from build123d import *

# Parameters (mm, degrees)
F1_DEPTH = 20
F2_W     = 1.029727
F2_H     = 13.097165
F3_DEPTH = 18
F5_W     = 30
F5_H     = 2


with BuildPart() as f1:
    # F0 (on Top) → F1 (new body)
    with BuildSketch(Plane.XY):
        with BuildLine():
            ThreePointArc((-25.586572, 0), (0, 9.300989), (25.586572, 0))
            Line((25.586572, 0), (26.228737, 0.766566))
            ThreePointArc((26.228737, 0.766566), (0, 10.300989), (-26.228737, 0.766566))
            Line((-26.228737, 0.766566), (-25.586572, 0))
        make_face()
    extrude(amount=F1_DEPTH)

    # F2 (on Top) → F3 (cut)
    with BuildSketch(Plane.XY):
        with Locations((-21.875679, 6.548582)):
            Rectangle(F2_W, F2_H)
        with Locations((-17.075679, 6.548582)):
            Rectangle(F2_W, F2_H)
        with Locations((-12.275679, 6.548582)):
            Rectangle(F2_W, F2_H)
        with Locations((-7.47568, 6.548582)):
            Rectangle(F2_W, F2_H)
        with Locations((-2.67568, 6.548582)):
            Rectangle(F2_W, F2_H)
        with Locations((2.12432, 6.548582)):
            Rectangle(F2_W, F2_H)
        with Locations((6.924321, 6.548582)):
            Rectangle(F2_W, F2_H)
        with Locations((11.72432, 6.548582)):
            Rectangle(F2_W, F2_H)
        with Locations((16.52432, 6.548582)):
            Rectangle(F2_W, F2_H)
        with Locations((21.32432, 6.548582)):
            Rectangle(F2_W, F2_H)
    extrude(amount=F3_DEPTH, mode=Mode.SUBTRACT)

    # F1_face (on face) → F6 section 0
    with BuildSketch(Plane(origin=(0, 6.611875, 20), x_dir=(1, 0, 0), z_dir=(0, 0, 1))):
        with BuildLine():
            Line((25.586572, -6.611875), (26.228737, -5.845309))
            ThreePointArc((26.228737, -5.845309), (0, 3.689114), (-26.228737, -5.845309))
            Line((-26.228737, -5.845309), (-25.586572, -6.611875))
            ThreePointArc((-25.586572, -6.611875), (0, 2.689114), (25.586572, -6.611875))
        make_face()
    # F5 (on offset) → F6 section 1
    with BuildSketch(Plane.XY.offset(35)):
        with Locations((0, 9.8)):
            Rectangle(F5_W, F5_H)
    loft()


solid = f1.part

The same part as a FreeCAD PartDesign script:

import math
import FreeCAD as App
import Part
import Sketcher

V = App.Vector
Q = App.Units.Quantity


def add_polygon(sketch, points):
    """Adds a closed chain of lines whose ends are joined by coincident constraints."""
    first, n = sketch.GeometryCount, len(points)
    for a, b in zip(points, points[1:] + points[:1]):
        sketch.addGeometry(Part.LineSegment(App.Vector(*a, 0), App.Vector(*b, 0)), False)
    for i in range(n):
        sketch.addConstraint(Sketcher.Constraint("Coincident", first + i, 2, first + (i + 1) % n, 1))

doc = App.newDocument("Part")
body = doc.addObject("PartDesign::Body", "Body")

# Sketch on XY plane
sketch1 = doc.addObject("Sketcher::SketchObject", "Sketch")
body.addObject(sketch1)
sketch1.AttachmentSupport = (doc.XY_Plane, [""])
sketch1.MapMode = "FlatFace"
sketch1.addGeometry([
    Part.ArcOfCircle(Part.Circle(V(0, -30.5, 0), V(0, 0, 1), 39.8), math.radians(50), math.radians(130)),
    Part.LineSegment(V(25.6, 0, 0), V(26.2, 0.8, 0)),
    Part.ArcOfCircle(Part.Circle(V(0, -30.5, 0), V(0, 0, 1), 40.8), math.radians(50), math.radians(130)),
    Part.LineSegment(V(-26.2, 0.8, 0), V(-25.6, 0, 0)),
], False)
sketch1.addConstraint([
    Sketcher.Constraint("Coincident", 0, 1, 1, 1),
    Sketcher.Constraint("Coincident", 1, 2, 2, 1),
    Sketcher.Constraint("Coincident", 2, 2, 3, 1),
    Sketcher.Constraint("Coincident", 3, 2, 0, 2),
    Sketcher.Constraint("Coincident", 2, 3, 0, 3),
    Sketcher.Constraint("Symmetric", 0, 1, 3, 2, -1, 1),
    Sketcher.Constraint("Symmetric", 1, 2, 2, 2, -2),
    Sketcher.Constraint("Distance", 1, Q("1 mm")),
    Sketcher.Constraint("Radius", 0, Q("39.844207 mm")),
    Sketcher.Constraint("DistanceY", 0, 3, -1, 1, Q("30.543218 mm")),
    Sketcher.Constraint("DistanceX", 2, 2, 0, 1, Q("51.815309 mm")),
])
pad1 = doc.addObject("PartDesign::Pad", "Pad")
body.addObject(pad1)
pad1.Profile = sketch1
pad1.Length = 20

# Sketch on XY plane
sketch2 = doc.addObject("Sketcher::SketchObject", "Sketch001")
body.addObject(sketch2)
sketch2.AttachmentSupport = (doc.XY_Plane, [""])
sketch2.MapMode = "FlatFace"
add_polygon(sketch2, [(-22.4, 13.1), (-22.4, 0), (-21.4, 0), (-21.4, 13.1)])  # lines 0-3
add_polygon(sketch2, [(-17.6, 13.1), (-17.6, 0), (-16.6, 0), (-16.6, 13.1)])  # lines 4-7
add_polygon(sketch2, [(-12.8, 13.1), (-12.8, 0), (-11.8, 0), (-11.8, 13.1)])  # lines 8-11
add_polygon(sketch2, [(-8, 13.1), (-8, 0), (-7, 0), (-7, 13.1)])  # lines 12-15
add_polygon(sketch2, [(-3.2, 13.1), (-3.2, 0), (-2.2, 0), (-2.2, 13.1)])  # lines 16-19
add_polygon(sketch2, [(1.6, 13.1), (1.6, 0), (2.6, 0), (2.6, 13.1)])  # lines 20-23
add_polygon(sketch2, [(6.4, 13.1), (6.4, 0), (7.4, 0), (7.4, 13.1)])  # lines 24-27
add_polygon(sketch2, [(11.2, 13.1), (11.2, 0), (12.2, 0), (12.2, 13.1)])  # lines 28-31
add_polygon(sketch2, [(16, 13.1), (16, 0), (17, 0), (17, 13.1)])  # lines 32-35
add_polygon(sketch2, [(20.8, 13.1), (20.8, 0), (21.8, 0), (21.8, 13.1)])  # lines 36-39
sketch2.addConstraint([
    Sketcher.Constraint("Vertical", 0),
    Sketcher.Constraint("Horizontal", 1),
    Sketcher.Constraint("Vertical", 2),
    Sketcher.Constraint("Horizontal", 3),
    Sketcher.Constraint("Vertical", 4),
    Sketcher.Constraint("Horizontal", 5),
    Sketcher.Constraint("Vertical", 6),
    Sketcher.Constraint("Horizontal", 7),
    Sketcher.Constraint("Vertical", 8),
    Sketcher.Constraint("Horizontal", 9),
    Sketcher.Constraint("Vertical", 10),
    Sketcher.Constraint("Horizontal", 11),
    Sketcher.Constraint("Vertical", 12),
    Sketcher.Constraint("Horizontal", 13),
    Sketcher.Constraint("Vertical", 14),
    Sketcher.Constraint("Horizontal", 15),
    Sketcher.Constraint("Vertical", 16),
    Sketcher.Constraint("Horizontal", 17),
    Sketcher.Constraint("Vertical", 18),
    Sketcher.Constraint("Horizontal", 19),
    Sketcher.Constraint("Vertical", 20),
    Sketcher.Constraint("Horizontal", 21),
    Sketcher.Constraint("Vertical", 22),
    Sketcher.Constraint("Horizontal", 23),
    Sketcher.Constraint("Vertical", 24),
    Sketcher.Constraint("Horizontal", 25),
    Sketcher.Constraint("Vertical", 26),
    Sketcher.Constraint("Horizontal", 27),
    Sketcher.Constraint("Vertical", 28),
    Sketcher.Constraint("Horizontal", 29),
    Sketcher.Constraint("Vertical", 30),
    Sketcher.Constraint("Horizontal", 31),
    Sketcher.Constraint("Vertical", 32),
    Sketcher.Constraint("Horizontal", 33),
    Sketcher.Constraint("Vertical", 34),
    Sketcher.Constraint("Horizontal", 35),
    Sketcher.Constraint("Vertical", 36),
    Sketcher.Constraint("Horizontal", 37),
    Sketcher.Constraint("Vertical", 38),
    Sketcher.Constraint("Horizontal", 39),
    Sketcher.Constraint("PointOnObject", 0, 2, -1),
    Sketcher.Constraint("PointOnObject", 4, 2, -1),
    Sketcher.Constraint("PointOnObject", 8, 2, -1),
    Sketcher.Constraint("PointOnObject", 12, 2, -1),
    Sketcher.Constraint("PointOnObject", 16, 2, -1),
    Sketcher.Constraint("PointOnObject", 20, 2, -1),
    Sketcher.Constraint("PointOnObject", 24, 2, -1),
    Sketcher.Constraint("PointOnObject", 28, 2, -1),
    Sketcher.Constraint("PointOnObject", 32, 2, -1),
    Sketcher.Constraint("PointOnObject", 36, 2, -1),
    Sketcher.Constraint("Horizontal", 3, 2, 6, 2),
    Sketcher.Constraint("Horizontal", 7, 2, 10, 2),
    Sketcher.Constraint("Horizontal", 11, 2, 14, 2),
    Sketcher.Constraint("Horizontal", 15, 2, 18, 2),
    Sketcher.Constraint("Horizontal", 19, 2, 22, 2),
    Sketcher.Constraint("Horizontal", 23, 2, 26, 2),
    Sketcher.Constraint("Horizontal", 27, 2, 30, 2),
    Sketcher.Constraint("Horizontal", 31, 2, 34, 2),
    Sketcher.Constraint("Horizontal", 35, 2, 38, 2),
    Sketcher.Constraint("Equal", 3, 5),
    Sketcher.Constraint("Equal", 7, 9),
    Sketcher.Constraint("Equal", 11, 13),
    Sketcher.Constraint("Equal", 15, 17),
    Sketcher.Constraint("Equal", 19, 21),
    Sketcher.Constraint("Equal", 23, 25),
    Sketcher.Constraint("Equal", 27, 29),
    Sketcher.Constraint("Equal", 31, 33),
    Sketcher.Constraint("Equal", 35, 37),
    Sketcher.Constraint("DistanceX", 0, 2, 4, 2, Q("4.8 mm")),
    Sketcher.Constraint("DistanceX", 4, 2, 8, 2, Q("4.8 mm")),
    Sketcher.Constraint("DistanceX", 8, 2, 12, 2, Q("4.799999 mm")),
    Sketcher.Constraint("DistanceX", 12, 2, 16, 2, Q("4.8 mm")),
    Sketcher.Constraint("DistanceX", 16, 2, 20, 2, Q("4.8 mm")),
    Sketcher.Constraint("DistanceX", 20, 2, 24, 2, Q("4.800001 mm")),
    Sketcher.Constraint("DistanceX", 24, 2, 28, 2, Q("4.799999 mm")),
    Sketcher.Constraint("DistanceX", 28, 2, 32, 2, Q("4.8 mm")),
    Sketcher.Constraint("DistanceX", 32, 2, 36, 2, Q("4.8 mm")),
    Sketcher.Constraint("DistanceX", 1, 1, 1, 2, Q("1.029727 mm")),
    Sketcher.Constraint("DistanceY", 0, 2, 0, 1, Q("13.097165 mm")),
    Sketcher.Constraint("DistanceX", 0, 2, -1, 1, Q("22.390542 mm")),
])
pocket1 = doc.addObject("PartDesign::Pocket", "Pocket")
body.addObject(pocket1)
pocket1.Profile = sketch2
pocket1.Length = 18
pocket1.Reversed = True

# Sketch on XY plane
sketch3 = doc.addObject("Sketcher::SketchObject", "Sketch002")
body.addObject(sketch3)
sketch3.AttachmentSupport = (doc.XY_Plane, [""])
sketch3.MapMode = "FlatFace"
sketch3.AttachmentOffset = App.Placement(V(0, 0, 20), App.Rotation())
sketch3.addGeometry([
    Part.LineSegment(V(25.6, 0, 0), V(26.2, 0.8, 0)),
    Part.ArcOfCircle(Part.Circle(V(0, -30.5, 0), V(0, 0, 1), 40.8), math.radians(50), math.radians(130)),
    Part.LineSegment(V(-26.2, 0.8, 0), V(-25.6, 0, 0)),
    Part.ArcOfCircle(Part.Circle(V(0, -30.5, 0), V(0, 0, 1), 39.8), math.radians(50), math.radians(130)),
], False)
sketch3.addConstraint([
    Sketcher.Constraint("Coincident", 0, 2, 1, 1),
    Sketcher.Constraint("Coincident", 1, 2, 2, 1),
    Sketcher.Constraint("Coincident", 2, 2, 3, 2),
    Sketcher.Constraint("Coincident", 3, 1, 0, 1),
    Sketcher.Constraint("Coincident", 3, 3, 1, 3),
    Sketcher.Constraint("Symmetric", 2, 2, 3, 1, -1, 1),
    Sketcher.Constraint("Symmetric", 0, 2, 1, 2, -2),
    Sketcher.Constraint("Distance", 0, Q("1 mm")),
    Sketcher.Constraint("Radius", 1, Q("40.844206 mm")),
    Sketcher.Constraint("DistanceY", 3, 3, -1, 1, Q("30.543218 mm")),
    Sketcher.Constraint("DistanceX", 2, 2, 0, 2, Q("51.815309 mm")),
])

# Sketch on XY plane
sketch4 = doc.addObject("Sketcher::SketchObject", "Sketch003")
body.addObject(sketch4)
sketch4.AttachmentSupport = (doc.XY_Plane, [""])
sketch4.MapMode = "FlatFace"
sketch4.AttachmentOffset = App.Placement(V(0, 0, 35), App.Rotation())
add_polygon(sketch4, [(-15, 10.8), (-15, 8.8), (15, 8.8), (15, 10.8)])  # lines 0-3
sketch4.addConstraint([
    Sketcher.Constraint("Vertical", 0),
    Sketcher.Constraint("Horizontal", 1),
    Sketcher.Constraint("Vertical", 2),
    Sketcher.Constraint("Horizontal", 3),
    Sketcher.Constraint("DistanceX", 1, 1, 1, 2, Q("30 mm")),
    Sketcher.Constraint("DistanceY", 0, 2, 0, 1, Q("2 mm")),
    Sketcher.Constraint("DistanceX", 0, 2, -1, 1, Q("15 mm")),
    Sketcher.Constraint("DistanceY", -1, 1, 0, 2, Q("8.8 mm")),
])

additiveloft = doc.addObject("PartDesign::AdditiveLoft", "AdditiveLoft")
body.addObject(additiveloft)
additiveloft.Profile = sketch3
additiveloft.Sections = [sketch4]

doc.recompute()
